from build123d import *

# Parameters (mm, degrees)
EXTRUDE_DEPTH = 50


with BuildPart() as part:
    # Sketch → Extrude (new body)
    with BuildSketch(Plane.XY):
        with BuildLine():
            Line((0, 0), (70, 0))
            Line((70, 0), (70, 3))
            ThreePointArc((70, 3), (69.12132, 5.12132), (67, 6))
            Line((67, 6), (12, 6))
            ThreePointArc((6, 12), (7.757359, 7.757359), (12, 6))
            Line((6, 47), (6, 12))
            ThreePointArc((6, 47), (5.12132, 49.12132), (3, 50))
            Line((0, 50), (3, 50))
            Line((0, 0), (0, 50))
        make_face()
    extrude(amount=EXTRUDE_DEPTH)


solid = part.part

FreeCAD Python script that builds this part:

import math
import FreeCAD as App
import Part
import Sketcher
from FreeCAD import Vector
Q = App.Units.Quantity

doc = App.newDocument("Part")
body = doc.addObject("PartDesign::Body", "Body")

# Sketch on XY plane
sketch1 = body.newObject("Sketcher::SketchObject", "Sketch")
sketch1.AttachmentSupport = (doc.getObject("XY_Plane"), [""])
sketch1.MapMode = "FlatFace"
sketch1.addGeometry(Part.LineSegment(Vector(0, 0, 0), Vector(70, 0, 0)), False)
sketch1.addGeometry(Part.LineSegment(Vector(70, 0, 0), Vector(70, 3, 0)), False)
sketch1.addGeometry(Part.ArcOfCircle(Part.Circle(Vector(67, 3, 0), Vector(0, 0, 1), 3), math.radians(0), math.radians(90)), False)
sketch1.addGeometry(Part.LineSegment(Vector(67, 6, 0), Vector(12, 6, 0)), False)
sketch1.addGeometry(Part.ArcOfCircle(Part.Circle(Vector(12, 12, 0), Vector(0, 0, 1), 6), math.radians(180), math.radians(270)), False)
sketch1.addGeometry(Part.LineSegment(Vector(6, 12, 0), Vector(6, 47, 0)), False)
sketch1.addGeometry(Part.ArcOfCircle(Part.Circle(Vector(3, 47, 0), Vector(0, 0, 1), 3), math.radians(0), math.radians(90)), False)
sketch1.addGeometry(Part.LineSegment(Vector(3, 50, 0), Vector(0, 50, 0)), False)
sketch1.addGeometry(Part.LineSegment(Vector(0, 50, 0), Vector(0, 0, 0)), False)
sketch1.addConstraint(Sketcher.Constraint("Coincident", 0, 2, 1, 1))
sketch1.addConstraint(Sketcher.Constraint("Tangent", 1, 2, 2, 1))
sketch1.addConstraint(Sketcher.Constraint("Tangent", 2, 2, 3, 1))
sketch1.addConstraint(Sketcher.Constraint("Tangent", 3, 2, 4, 2))
sketch1.addConstraint(Sketcher.Constraint("Tangent", 4, 1, 5, 1))
sketch1.addConstraint(Sketcher.Constraint("Tangent", 5, 2, 6, 1))
sketch1.addConstraint(Sketcher.Constraint("Tangent", 6, 2, 7, 1))
sketch1.addConstraint(Sketcher.Constraint("Coincident", 7, 2, 8, 1))
sketch1.addConstraint(Sketcher.Constraint("Coincident", 8, 2, 0, 1))
sketch1.addConstraint(Sketcher.Constraint("Horizontal", 0))
sketch1.addConstraint(Sketcher.Constraint("Vertical", 1))
sketch1.addConstraint(Sketcher.Constraint("Horizontal", 3))
sketch1.addConstraint(Sketcher.Constraint("Vertical", 5))
sketch1.addConstraint(Sketcher.Constraint("Horizontal", 7))
sketch1.addConstraint(Sketcher.Constraint("Vertical", 8))
sketch1.addConstraint(Sketcher.Constraint("Coincident", 8, 2, -1, 1))
sketch1.addConstraint(Sketcher.Constraint("Equal", 2, 6))
sketch1.addConstraint(Sketcher.Constraint("Equal", 7, 1))
sketch1.addConstraint(Sketcher.Constraint("Radius", 2, Q("3.000001 mm")))
sketch1.addConstraint(Sketcher.Constraint("Radius", 4, Q("5.999999 mm")))
sketch1.addConstraint(Sketcher.Constraint("DistanceX", 0, 1, 0, 2, Q("70 mm")))
sketch1.addConstraint(Sketcher.Constraint("DistanceX", 3, 2, 3, 1, Q("55 mm")))
sketch1.addConstraint(Sketcher.Constraint("DistanceY", 5, 1, 5, 2, Q("35 mm")))
pad1 = body.newObject("PartDesign::Pad", "Pad")
pad1.Profile = sketch1
pad1.Length = 50

doc.recompute()
